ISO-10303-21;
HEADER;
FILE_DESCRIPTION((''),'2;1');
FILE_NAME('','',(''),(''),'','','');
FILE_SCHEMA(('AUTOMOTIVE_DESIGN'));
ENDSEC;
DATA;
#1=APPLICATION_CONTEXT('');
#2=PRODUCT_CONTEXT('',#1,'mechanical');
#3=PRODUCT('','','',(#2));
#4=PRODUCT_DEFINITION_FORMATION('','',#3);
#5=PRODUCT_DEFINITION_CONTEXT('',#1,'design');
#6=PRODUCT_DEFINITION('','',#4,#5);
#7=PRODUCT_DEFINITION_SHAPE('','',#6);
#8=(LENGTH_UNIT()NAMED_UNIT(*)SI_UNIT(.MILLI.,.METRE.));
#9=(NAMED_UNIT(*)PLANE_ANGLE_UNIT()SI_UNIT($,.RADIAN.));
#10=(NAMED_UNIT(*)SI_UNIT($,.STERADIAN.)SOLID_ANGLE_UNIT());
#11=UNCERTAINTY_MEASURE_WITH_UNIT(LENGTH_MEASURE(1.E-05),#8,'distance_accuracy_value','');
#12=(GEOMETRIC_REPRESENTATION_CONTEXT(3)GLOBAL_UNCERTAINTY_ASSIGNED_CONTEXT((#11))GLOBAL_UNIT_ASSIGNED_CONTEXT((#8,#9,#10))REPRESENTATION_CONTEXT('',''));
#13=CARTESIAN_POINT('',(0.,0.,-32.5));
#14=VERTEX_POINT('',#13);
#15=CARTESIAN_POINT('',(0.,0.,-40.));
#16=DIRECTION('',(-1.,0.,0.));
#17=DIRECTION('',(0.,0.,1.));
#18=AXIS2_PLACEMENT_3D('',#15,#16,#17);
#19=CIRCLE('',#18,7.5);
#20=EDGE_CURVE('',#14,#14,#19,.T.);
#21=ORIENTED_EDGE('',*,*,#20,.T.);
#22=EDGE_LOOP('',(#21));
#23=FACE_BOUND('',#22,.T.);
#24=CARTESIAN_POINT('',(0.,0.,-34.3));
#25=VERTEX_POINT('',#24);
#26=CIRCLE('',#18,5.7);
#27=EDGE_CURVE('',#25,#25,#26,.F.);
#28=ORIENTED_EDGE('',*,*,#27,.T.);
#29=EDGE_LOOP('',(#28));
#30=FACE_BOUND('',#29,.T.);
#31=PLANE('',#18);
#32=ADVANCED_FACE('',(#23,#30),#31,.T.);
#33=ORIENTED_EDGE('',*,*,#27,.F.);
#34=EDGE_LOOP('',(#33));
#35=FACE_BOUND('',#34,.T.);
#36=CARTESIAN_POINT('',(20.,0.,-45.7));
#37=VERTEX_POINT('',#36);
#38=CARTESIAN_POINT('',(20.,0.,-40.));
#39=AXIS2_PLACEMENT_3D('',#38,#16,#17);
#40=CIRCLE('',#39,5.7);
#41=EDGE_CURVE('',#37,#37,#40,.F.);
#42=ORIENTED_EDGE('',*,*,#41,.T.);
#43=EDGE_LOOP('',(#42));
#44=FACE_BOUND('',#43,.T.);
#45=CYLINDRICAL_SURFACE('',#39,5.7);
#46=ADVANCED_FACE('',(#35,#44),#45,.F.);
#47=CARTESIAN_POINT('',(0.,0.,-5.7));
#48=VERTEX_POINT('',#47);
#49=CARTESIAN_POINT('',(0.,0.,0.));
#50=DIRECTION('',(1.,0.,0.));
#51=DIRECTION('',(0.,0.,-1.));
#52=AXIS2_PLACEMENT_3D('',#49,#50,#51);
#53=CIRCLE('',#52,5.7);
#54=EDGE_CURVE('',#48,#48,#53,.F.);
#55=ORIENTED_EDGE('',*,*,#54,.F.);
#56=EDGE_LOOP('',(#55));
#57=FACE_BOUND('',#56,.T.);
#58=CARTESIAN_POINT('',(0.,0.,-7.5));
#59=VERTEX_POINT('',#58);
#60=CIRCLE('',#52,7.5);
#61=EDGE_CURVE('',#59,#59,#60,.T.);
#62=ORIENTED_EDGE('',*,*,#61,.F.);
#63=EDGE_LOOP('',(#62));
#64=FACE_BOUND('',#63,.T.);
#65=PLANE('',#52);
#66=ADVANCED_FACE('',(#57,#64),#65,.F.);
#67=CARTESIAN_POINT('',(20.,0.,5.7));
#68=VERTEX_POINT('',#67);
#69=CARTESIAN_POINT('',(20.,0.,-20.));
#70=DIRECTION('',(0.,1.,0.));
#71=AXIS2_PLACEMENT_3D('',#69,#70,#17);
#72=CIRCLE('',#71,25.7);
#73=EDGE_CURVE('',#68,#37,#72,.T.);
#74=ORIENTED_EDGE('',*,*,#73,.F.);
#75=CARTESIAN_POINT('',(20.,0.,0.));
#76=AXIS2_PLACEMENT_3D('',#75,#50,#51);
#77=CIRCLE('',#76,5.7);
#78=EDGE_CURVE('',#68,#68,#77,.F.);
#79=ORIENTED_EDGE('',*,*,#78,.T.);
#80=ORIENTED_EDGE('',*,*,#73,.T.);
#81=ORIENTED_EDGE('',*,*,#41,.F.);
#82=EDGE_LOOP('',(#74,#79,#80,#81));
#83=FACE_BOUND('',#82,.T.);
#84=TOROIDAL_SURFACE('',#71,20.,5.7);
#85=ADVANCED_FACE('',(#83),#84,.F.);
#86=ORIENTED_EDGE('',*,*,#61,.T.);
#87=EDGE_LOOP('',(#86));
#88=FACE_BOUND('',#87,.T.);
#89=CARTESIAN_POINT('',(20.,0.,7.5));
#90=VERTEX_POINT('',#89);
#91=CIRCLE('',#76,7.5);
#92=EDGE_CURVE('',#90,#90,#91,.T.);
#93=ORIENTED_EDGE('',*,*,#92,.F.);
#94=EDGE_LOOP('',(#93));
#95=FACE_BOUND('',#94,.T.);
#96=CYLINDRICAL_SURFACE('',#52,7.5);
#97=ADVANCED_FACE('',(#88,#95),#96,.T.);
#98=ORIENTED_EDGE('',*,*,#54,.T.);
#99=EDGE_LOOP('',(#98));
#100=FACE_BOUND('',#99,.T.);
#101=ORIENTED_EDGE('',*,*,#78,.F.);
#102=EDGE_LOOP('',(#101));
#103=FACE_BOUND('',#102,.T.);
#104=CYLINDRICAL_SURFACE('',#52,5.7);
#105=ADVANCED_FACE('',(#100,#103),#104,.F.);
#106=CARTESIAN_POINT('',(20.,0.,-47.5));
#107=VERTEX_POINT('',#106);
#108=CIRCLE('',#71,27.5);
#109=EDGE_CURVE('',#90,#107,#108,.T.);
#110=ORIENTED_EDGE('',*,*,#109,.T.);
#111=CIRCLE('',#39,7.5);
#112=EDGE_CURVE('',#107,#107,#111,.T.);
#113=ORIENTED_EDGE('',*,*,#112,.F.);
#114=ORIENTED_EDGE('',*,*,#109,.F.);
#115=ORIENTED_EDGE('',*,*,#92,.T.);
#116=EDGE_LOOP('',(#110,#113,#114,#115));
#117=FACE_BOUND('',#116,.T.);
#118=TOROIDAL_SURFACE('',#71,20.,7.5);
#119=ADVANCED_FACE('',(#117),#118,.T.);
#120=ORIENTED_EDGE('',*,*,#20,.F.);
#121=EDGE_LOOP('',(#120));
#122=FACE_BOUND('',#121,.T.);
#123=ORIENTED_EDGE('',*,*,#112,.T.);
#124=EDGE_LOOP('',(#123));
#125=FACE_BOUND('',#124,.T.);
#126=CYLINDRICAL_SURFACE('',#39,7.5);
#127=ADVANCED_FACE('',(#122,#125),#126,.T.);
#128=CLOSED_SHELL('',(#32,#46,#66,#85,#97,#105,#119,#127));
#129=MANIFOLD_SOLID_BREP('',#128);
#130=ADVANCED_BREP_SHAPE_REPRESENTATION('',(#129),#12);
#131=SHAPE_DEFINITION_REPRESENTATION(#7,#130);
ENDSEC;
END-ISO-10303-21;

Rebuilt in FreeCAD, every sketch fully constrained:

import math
import FreeCAD as App
import Part
import Sketcher
Q = App.Units.Quantity

doc = App.newDocument("Part")
body = doc.addObject("PartDesign::Body", "Body")

# Sketch on YZ plane
sketch1 = body.newObject("Sketcher::SketchObject", "Sketch")
sketch1.AttachmentSupport = (doc.getObject("YZ_Plane"), [""])
sketch1.MapMode = "FlatFace"
sketch1.addGeometry([
    Part.Circle(App.Vector(0, 0, 0), App.Vector(0, 0, 1), 8),
    Part.Circle(App.Vector(0, 0, 0), App.Vector(0, 0, 1), 6),
], False)
sketch1.addConstraint([
    Sketcher.Constraint("Coincident", 0, 3, -1, 1),
    Sketcher.Constraint("Coincident", 1, 3, -1, 1),
    Sketcher.Constraint("Diameter", 0, Q("15 mm")),
    Sketcher.Constraint("Diameter", 1, Q("11.4 mm")),
])

# Sketch on XZ plane
sketch2 = body.newObject("Sketcher::SketchObject", "Sketch001")
sketch2.AttachmentSupport = (doc.getObject("XZ_Plane"), [""])
sketch2.MapMode = "FlatFace"
sketch2.addGeometry([
    Part.LineSegment(App.Vector(0, 0, 0), App.Vector(20, 0, 0)),
    Part.ArcOfCircle(Part.Circle(App.Vector(20, -20, 0), App.Vector(0, 0, 1), 20), math.radians(-90), math.radians(90)),
    Part.LineSegment(App.Vector(20, -40, 0), App.Vector(0, -40, 0)),
], False)
sketch2.addConstraint([
    Sketcher.Constraint("Tangent", 0, 2, 1, 2),
    Sketcher.Constraint("Tangent", 1, 1, 2, 1),
    Sketcher.Constraint("Horizontal", 0),
    Sketcher.Constraint("Horizontal", 2),
    Sketcher.Constraint("Coincident", 0, 1, -1, 1),
    Sketcher.Constraint("PointOnObject", 2, 2, -2),
    Sketcher.Constraint("Radius", 1, Q("20 mm")),
    Sketcher.Constraint("DistanceX", 0, 1, 0, 2, Q("20 mm")),
])
doc.recompute()

additivepipe = body.newObject("PartDesign::AdditivePipe", "AdditivePipe")
additivepipe.Profile = sketch1
additivepipe.Spine = (sketch2, ["Edge1", "Edge2", "Edge3"])

doc.recompute()
